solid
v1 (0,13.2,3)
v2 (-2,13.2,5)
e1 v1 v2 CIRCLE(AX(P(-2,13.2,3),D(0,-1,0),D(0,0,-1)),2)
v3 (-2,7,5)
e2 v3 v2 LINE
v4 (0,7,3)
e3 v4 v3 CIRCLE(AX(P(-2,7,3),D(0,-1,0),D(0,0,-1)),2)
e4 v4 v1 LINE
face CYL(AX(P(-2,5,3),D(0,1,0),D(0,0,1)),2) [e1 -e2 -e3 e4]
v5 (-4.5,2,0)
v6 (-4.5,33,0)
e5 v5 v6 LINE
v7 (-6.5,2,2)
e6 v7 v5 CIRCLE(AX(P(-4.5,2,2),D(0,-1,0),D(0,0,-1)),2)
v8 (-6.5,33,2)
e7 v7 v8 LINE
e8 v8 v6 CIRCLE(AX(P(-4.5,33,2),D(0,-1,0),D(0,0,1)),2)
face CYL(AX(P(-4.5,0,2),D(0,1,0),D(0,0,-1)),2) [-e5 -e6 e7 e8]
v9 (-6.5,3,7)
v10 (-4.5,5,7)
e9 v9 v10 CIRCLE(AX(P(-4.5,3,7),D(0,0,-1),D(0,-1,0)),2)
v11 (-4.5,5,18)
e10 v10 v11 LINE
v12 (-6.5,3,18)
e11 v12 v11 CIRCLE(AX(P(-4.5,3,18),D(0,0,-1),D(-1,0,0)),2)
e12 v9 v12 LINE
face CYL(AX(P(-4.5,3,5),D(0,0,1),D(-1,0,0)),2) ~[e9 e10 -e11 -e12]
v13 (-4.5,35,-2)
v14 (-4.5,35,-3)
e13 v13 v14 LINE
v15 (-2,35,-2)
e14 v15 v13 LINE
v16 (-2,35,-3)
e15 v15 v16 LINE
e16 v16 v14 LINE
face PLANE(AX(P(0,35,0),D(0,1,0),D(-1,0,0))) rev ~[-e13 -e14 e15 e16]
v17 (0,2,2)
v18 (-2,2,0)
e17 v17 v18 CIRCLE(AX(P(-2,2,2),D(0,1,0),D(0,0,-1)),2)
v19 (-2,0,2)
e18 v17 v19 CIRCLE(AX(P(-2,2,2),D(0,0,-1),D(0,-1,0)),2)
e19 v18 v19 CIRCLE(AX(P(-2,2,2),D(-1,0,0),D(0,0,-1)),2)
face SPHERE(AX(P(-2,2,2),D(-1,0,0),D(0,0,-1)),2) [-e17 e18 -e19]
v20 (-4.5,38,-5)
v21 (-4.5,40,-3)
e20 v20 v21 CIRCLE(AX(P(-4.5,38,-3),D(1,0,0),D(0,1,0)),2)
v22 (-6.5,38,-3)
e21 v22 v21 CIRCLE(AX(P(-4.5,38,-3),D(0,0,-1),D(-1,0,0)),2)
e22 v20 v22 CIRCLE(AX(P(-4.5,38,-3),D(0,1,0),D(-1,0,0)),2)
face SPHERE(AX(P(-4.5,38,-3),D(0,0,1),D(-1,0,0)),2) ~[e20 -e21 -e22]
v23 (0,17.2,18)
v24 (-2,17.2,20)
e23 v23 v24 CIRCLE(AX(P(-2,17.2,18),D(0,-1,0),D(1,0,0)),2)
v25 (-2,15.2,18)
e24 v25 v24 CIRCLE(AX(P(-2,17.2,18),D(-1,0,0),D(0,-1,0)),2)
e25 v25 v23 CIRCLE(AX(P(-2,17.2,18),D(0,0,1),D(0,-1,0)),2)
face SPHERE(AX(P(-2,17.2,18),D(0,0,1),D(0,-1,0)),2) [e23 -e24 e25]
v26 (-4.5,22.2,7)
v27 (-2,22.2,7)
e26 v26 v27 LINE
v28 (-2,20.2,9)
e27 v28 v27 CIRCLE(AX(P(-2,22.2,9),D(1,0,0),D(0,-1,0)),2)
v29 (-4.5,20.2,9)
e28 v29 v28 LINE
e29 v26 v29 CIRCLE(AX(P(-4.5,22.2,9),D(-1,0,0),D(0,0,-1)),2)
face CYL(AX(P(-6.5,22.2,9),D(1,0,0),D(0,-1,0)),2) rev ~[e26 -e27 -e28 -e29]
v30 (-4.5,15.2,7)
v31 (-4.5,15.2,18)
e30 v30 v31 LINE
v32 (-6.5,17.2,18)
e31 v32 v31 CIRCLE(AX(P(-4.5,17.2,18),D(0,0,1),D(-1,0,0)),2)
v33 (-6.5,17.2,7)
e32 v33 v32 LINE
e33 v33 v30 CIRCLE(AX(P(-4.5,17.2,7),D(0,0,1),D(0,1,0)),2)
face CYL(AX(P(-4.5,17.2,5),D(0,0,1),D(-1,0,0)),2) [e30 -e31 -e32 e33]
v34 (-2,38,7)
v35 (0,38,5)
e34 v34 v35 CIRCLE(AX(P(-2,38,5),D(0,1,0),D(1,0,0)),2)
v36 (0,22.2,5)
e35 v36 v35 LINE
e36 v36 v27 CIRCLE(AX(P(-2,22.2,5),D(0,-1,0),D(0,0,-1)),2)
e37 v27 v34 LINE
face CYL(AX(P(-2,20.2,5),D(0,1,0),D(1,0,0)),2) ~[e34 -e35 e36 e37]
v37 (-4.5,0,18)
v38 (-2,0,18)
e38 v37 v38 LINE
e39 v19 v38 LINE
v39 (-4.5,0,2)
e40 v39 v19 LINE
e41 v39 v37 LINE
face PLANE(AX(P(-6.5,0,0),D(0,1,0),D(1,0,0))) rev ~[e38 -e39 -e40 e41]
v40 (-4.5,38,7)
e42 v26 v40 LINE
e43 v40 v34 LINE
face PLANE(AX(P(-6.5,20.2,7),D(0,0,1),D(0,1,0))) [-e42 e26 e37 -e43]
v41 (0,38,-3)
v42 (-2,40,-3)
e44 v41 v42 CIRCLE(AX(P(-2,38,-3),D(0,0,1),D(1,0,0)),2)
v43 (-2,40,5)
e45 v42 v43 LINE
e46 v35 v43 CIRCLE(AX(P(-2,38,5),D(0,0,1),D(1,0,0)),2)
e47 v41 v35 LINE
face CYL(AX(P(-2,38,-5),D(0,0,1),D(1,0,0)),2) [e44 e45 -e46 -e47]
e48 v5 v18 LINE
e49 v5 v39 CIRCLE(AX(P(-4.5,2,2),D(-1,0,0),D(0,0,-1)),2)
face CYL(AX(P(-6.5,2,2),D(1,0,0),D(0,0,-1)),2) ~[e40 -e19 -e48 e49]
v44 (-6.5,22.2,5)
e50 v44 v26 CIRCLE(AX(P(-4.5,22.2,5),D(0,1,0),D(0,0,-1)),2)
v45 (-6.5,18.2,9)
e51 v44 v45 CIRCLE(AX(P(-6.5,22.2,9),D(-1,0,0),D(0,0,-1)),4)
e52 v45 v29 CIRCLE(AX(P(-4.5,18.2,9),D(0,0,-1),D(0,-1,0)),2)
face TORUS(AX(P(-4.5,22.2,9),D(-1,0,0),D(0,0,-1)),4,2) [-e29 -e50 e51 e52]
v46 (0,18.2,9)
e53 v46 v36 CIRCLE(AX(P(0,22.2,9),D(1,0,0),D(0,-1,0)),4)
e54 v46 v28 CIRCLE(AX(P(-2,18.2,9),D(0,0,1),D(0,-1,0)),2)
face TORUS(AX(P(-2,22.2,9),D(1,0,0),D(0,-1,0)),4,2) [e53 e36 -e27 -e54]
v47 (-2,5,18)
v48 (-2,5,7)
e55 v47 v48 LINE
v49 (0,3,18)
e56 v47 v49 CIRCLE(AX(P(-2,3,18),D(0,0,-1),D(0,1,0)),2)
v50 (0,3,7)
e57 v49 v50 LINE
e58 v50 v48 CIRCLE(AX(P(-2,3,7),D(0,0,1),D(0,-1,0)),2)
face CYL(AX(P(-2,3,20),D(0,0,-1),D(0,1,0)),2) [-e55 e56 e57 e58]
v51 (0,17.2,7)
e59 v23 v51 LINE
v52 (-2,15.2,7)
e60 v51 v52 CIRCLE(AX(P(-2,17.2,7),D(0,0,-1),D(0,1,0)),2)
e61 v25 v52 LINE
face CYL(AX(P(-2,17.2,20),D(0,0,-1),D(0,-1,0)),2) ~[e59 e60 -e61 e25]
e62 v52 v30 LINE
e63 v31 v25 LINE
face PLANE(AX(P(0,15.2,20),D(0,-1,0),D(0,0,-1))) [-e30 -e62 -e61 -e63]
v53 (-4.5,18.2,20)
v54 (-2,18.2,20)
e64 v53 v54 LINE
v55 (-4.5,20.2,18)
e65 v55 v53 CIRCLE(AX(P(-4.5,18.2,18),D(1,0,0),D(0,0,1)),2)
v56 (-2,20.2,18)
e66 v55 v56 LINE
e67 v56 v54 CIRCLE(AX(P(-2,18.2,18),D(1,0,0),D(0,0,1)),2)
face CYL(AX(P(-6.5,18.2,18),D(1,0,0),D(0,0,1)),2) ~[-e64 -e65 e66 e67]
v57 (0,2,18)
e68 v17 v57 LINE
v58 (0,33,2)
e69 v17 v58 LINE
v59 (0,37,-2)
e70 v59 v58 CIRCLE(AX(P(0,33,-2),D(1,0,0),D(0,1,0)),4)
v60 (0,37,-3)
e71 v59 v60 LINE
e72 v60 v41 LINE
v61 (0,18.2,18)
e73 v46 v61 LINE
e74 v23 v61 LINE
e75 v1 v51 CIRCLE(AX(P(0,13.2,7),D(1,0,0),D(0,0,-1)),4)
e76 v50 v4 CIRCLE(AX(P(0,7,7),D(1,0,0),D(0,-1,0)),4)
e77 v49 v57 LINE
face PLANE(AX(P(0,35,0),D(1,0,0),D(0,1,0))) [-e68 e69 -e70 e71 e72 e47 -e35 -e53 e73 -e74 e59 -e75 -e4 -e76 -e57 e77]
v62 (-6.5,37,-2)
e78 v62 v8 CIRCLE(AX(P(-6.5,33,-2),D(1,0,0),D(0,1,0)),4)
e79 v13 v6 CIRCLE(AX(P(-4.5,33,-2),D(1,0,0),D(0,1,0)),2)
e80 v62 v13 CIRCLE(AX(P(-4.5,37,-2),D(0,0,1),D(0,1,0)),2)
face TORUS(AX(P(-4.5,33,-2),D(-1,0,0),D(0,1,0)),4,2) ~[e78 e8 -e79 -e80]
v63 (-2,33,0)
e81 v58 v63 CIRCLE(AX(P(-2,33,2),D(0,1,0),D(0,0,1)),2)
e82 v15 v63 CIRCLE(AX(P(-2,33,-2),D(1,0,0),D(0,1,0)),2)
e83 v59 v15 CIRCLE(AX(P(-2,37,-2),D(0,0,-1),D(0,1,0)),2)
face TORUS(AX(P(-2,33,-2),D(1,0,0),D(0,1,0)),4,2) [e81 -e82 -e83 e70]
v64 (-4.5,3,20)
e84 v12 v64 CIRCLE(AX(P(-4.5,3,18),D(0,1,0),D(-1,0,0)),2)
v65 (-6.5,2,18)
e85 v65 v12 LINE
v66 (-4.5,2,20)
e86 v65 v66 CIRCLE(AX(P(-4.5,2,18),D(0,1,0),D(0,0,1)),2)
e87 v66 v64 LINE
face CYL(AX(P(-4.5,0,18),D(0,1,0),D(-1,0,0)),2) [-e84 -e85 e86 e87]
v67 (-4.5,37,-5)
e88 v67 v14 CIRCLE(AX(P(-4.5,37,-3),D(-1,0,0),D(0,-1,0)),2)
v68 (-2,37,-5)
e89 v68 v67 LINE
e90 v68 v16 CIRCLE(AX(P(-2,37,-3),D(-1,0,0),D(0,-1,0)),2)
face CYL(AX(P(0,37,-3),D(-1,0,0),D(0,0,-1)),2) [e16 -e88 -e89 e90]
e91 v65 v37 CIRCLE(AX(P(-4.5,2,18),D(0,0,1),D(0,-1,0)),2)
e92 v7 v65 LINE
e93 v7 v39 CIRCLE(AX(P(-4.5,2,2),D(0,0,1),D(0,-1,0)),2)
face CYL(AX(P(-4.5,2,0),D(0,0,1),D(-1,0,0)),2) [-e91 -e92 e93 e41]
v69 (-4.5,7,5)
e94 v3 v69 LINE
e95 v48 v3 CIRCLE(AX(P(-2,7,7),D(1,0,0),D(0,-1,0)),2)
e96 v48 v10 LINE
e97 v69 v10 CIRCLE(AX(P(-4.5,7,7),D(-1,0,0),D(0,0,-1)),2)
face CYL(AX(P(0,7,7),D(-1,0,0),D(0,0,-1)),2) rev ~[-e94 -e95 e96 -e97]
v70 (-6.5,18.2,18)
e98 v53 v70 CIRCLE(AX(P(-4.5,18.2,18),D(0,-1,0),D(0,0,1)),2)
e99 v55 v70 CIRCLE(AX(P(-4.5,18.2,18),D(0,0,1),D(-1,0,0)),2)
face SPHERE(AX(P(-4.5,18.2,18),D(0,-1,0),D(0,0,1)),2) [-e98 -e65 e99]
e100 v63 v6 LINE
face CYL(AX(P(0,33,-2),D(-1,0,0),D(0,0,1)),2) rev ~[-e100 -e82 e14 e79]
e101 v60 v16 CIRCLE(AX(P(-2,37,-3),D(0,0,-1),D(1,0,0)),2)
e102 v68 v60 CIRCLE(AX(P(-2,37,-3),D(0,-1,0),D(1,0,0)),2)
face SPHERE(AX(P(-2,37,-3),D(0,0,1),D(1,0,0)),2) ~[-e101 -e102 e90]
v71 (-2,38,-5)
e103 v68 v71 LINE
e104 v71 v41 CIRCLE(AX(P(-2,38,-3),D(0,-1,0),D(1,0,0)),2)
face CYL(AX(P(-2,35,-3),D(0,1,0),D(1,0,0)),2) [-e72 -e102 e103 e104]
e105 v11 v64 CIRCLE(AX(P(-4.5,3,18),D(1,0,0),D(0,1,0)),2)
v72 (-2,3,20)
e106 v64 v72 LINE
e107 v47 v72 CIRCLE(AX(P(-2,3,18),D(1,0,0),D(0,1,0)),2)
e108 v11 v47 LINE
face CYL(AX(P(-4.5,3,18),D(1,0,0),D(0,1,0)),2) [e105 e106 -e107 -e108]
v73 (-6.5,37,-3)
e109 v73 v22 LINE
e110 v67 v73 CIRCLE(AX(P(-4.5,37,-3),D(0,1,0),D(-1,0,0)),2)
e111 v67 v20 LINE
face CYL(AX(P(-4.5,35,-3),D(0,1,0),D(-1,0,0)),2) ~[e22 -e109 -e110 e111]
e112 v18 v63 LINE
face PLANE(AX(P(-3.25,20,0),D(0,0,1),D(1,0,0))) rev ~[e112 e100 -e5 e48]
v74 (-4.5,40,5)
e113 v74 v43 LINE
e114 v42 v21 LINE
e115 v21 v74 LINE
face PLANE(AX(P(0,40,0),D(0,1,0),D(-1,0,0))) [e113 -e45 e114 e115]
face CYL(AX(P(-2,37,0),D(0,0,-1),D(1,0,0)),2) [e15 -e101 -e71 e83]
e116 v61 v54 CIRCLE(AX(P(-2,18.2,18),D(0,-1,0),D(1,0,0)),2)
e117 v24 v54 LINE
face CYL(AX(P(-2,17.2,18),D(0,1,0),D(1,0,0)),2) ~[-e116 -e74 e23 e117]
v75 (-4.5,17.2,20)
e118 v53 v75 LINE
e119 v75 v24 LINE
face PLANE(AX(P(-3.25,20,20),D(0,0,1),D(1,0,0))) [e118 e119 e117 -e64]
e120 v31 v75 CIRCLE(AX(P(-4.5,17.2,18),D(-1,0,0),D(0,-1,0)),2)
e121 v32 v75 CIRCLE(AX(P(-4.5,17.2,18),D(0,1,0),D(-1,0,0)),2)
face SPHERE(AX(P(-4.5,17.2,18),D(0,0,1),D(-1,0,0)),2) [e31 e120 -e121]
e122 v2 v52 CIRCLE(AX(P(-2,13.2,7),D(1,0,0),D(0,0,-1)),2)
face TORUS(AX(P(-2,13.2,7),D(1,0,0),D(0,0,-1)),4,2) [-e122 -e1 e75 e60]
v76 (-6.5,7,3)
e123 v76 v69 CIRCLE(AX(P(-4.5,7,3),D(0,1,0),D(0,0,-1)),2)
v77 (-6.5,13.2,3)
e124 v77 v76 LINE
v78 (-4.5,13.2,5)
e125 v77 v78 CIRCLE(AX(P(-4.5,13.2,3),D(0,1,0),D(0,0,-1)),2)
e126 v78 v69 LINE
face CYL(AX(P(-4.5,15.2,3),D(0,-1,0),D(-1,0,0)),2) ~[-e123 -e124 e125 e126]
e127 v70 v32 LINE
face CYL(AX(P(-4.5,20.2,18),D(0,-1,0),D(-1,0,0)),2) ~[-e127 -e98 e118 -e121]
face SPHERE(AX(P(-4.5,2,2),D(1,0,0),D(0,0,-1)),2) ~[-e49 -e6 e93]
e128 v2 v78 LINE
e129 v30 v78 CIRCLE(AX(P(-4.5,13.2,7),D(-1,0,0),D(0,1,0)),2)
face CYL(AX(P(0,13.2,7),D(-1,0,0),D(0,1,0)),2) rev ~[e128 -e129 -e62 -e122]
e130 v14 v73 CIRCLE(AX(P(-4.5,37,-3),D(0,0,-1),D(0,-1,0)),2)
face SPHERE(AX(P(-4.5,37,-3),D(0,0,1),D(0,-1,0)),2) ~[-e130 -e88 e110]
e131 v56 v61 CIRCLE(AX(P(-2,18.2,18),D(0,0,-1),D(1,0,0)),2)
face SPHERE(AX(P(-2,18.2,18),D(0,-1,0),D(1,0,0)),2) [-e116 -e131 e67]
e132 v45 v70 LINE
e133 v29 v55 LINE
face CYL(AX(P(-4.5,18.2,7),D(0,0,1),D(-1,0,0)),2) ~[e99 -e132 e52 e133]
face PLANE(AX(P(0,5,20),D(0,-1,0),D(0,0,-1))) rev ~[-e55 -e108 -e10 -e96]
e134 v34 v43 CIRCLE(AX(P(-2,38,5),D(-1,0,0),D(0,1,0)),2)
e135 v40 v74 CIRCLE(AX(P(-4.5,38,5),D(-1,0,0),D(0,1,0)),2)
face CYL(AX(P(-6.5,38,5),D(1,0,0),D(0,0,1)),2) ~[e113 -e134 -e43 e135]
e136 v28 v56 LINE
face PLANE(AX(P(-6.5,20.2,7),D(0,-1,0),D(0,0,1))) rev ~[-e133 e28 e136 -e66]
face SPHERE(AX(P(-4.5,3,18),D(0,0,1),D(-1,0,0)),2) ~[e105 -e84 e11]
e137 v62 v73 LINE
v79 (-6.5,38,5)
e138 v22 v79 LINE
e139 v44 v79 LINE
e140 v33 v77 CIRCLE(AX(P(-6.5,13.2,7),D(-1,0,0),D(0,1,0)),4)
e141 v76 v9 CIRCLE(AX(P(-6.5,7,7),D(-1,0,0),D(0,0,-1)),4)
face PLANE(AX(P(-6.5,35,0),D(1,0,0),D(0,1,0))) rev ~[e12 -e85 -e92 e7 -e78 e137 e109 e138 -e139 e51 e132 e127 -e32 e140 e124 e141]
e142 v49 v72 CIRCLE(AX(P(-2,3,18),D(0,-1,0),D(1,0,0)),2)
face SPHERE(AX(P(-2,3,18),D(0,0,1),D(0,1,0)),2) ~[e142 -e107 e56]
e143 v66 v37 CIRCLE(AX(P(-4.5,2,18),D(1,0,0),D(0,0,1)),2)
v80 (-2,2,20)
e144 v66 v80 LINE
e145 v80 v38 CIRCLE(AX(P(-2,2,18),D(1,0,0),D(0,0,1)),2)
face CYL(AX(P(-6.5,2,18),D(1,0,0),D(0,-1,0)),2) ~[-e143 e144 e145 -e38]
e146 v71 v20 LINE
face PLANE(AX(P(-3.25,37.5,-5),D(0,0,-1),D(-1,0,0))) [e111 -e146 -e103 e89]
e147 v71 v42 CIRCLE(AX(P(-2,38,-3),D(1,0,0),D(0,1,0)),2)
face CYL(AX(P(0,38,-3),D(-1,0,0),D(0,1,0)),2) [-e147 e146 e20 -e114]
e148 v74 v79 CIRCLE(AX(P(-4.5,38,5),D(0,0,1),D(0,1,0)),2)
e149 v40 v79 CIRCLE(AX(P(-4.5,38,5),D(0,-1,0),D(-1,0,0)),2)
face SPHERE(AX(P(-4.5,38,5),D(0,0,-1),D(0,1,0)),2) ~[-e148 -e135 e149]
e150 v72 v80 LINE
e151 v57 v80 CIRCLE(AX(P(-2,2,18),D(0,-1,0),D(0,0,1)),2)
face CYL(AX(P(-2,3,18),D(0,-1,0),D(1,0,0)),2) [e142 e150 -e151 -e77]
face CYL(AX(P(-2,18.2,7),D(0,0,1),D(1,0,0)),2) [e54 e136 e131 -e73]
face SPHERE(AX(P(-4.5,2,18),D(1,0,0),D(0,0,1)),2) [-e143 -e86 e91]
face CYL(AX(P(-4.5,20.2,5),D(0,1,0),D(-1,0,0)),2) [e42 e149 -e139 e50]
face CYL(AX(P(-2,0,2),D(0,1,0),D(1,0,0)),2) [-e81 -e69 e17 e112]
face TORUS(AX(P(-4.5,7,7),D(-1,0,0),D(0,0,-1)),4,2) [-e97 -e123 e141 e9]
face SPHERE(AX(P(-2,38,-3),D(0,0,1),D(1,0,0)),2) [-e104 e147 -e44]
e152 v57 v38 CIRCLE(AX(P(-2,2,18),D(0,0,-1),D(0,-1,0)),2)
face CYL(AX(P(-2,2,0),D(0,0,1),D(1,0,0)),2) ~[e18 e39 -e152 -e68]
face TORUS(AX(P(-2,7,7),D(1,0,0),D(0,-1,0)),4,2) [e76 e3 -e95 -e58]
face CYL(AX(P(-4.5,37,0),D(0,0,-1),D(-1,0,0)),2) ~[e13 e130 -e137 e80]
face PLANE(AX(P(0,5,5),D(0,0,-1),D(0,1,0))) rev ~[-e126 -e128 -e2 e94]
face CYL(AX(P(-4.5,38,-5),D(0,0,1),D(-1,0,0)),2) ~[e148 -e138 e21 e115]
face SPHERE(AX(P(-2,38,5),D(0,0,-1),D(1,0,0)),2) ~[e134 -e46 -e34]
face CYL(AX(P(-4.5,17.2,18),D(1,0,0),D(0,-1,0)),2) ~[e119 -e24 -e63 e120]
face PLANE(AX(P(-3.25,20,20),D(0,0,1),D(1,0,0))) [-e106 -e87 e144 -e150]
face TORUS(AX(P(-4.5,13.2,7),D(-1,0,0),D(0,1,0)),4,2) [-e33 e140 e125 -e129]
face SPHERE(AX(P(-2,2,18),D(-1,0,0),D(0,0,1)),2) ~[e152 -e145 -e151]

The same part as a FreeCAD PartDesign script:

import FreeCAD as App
import Part
import Sketcher
from FreeCAD import Vector
Q = App.Units.Quantity


def edges_at(feature, points):
    """Names of the edges that pass closest to the given points."""
    edges = feature.Shape.Edges
    near = lambda p: min(range(len(edges)), key=lambda i: edges[i].distToShape(Part.Vertex(*p))[0])
    return sorted({f"Edge{near(p) + 1}" for p in points})


def add_polygon(sketch, points):
    """Adds a closed chain of lines whose ends are joined by coincident constraints."""
    first, n = sketch.GeometryCount, len(points)
    for a, b in zip(points, points[1:] + points[:1]):
        sketch.addGeometry(Part.LineSegment(App.Vector(*a, 0), App.Vector(*b, 0)), False)
    for i in range(n):
        sketch.addConstraint(Sketcher.Constraint("Coincident", first + i, 2, first + (i + 1) % n, 1))

doc = App.newDocument("Part")
body = doc.addObject("PartDesign::Body", "Body")

# Sketch on XY plane
sketch1 = doc.addObject("Sketcher::SketchObject", "Sketch")
body.addObject(sketch1)
sketch1.AttachmentSupport = (doc.XY_Plane, [""])
sketch1.MapMode = "FlatFace"
add_polygon(sketch1, [(-6, 40), (-6, 0), (0, 0), (0, 40)])  # lines 0-3
sketch1.addConstraint(Sketcher.Constraint("Vertical", 0))
sketch1.addConstraint(Sketcher.Constraint("Horizontal", 1))
sketch1.addConstraint(Sketcher.Constraint("Vertical", 2))
sketch1.addConstraint(Sketcher.Constraint("Horizontal", 3))
sketch1.addConstraint(Sketcher.Constraint("Coincident", 1, 2, -1, 1))
sketch1.addConstraint(Sketcher.Constraint("DistanceY", 0, 2, 0, 1, Q("40 mm")))
sketch1.addConstraint(Sketcher.Constraint("DistanceX", 1, 1, 1, 2, Q("6.5 mm")))
pad1 = doc.addObject("PartDesign::Pad", "Pad")
body.addObject(pad1)
pad1.Profile = sketch1
pad1.Length = 20

# Sketch on YZ plane
sketch2 = doc.addObject("Sketcher::SketchObject", "Sketch001")
body.addObject(sketch2)
sketch2.AttachmentSupport = (doc.YZ_Plane, [""])
sketch2.MapMode = "FlatFace"
add_polygon(sketch2, [(15, 20), (5, 20), (5, 5), (15, 5)])  # lines 0-3
sketch2.addConstraint(Sketcher.Constraint("Horizontal", 0))
sketch2.addConstraint(Sketcher.Constraint("Vertical", 1))
sketch2.addConstraint(Sketcher.Constraint("Horizontal", 2))
sketch2.addConstraint(Sketcher.Constraint("Vertical", 3))
sketch2.addConstraint(Sketcher.Constraint("DistanceY", 1, 2, 1, 1, Q("15 mm")))
sketch2.addConstraint(Sketcher.Constraint("DistanceX", 0, 2, 0, 1, Q("10.2 mm")))
sketch2.addConstraint(Sketcher.Constraint("DistanceX", -1, 1, 0, 2, Q("5 mm")))
sketch2.addConstraint(Sketcher.Constraint("DistanceY", -1, 1, 0, 2, Q("20 mm")))
pocket1 = doc.addObject("PartDesign::Pocket", "Pocket")
body.addObject(pocket1)
pocket1.Profile = sketch2
pocket1.Type = "ThroughAll"
doc.recompute()

fillet = doc.addObject("PartDesign::Fillet", "Fillet")
body.addObject(fillet)
fillet.Base = (pocket1, edges_at(pocket1, [
    (-6.5, 15.2, 12.5),
    (-6.5, 10.1, 5),
    (-3.25, 15.2, 5),
    (-6.5, 5, 12.5),
    (-3.25, 5, 5),
    (0, 5, 12.5),
    (0, 10.1, 5),
    (0, 15.2, 12.5),
]))
fillet.Radius = 2

# Sketch on YZ plane
sketch3 = doc.addObject("Sketcher::SketchObject", "Sketch002")
body.addObject(sketch3)
sketch3.AttachmentSupport = (doc.YZ_Plane, [""])
sketch3.MapMode = "FlatFace"
sketch3.AttachmentOffset = App.Placement(Vector(0, 0, -6.5), App.Rotation())
add_polygon(sketch3, [(40, 7), (20, 7), (20, 20), (40, 20)])  # lines 0-3
sketch3.addConstraint(Sketcher.Constraint("Horizontal", 0))
sketch3.addConstraint(Sketcher.Constraint("Vertical", 1))
sketch3.addConstraint(Sketcher.Constraint("Horizontal", 2))
sketch3.addConstraint(Sketcher.Constraint("Vertical", 3))
sketch3.addConstraint(Sketcher.Constraint("DistanceY", 1, 1, 1, 2, Q("13 mm")))
sketch3.addConstraint(Sketcher.Constraint("DistanceX", 0, 2, 0, 1, Q("19.8 mm")))
sketch3.addConstraint(Sketcher.Constraint("DistanceY", -1, 1, 0, 2, Q("7 mm")))
sketch3.addConstraint(Sketcher.Constraint("DistanceX", -1, 1, 2, 2, Q("40 mm")))
pocket2 = doc.addObject("PartDesign::Pocket", "Pocket001")
body.addObject(pocket2)
pocket2.Profile = sketch3
pocket2.Type = "ThroughAll"
pocket2.Reversed = True

# Sketch on XY plane
sketch4 = doc.addObject("Sketcher::SketchObject", "Sketch003")
body.addObject(sketch4)
sketch4.AttachmentSupport = (doc.XY_Plane, [""])
sketch4.MapMode = "FlatFace"
add_polygon(sketch4, [(0, 40), (0, 35), (-6, 35), (-6, 40)])  # lines 0-3
sketch4.addConstraint(Sketcher.Constraint("Vertical", 0))
sketch4.addConstraint(Sketcher.Constraint("Horizontal", 1))
sketch4.addConstraint(Sketcher.Constraint("Vertical", 2))
sketch4.addConstraint(Sketcher.Constraint("Horizontal", 3))
sketch4.addConstraint(Sketcher.Constraint("PointOnObject", 0, 2, -2))
sketch4.addConstraint(Sketcher.Constraint("DistanceY", 0, 2, 0, 1, Q("5 mm")))
sketch4.addConstraint(Sketcher.Constraint("DistanceX", 1, 2, 1, 1, Q("6.5 mm")))
sketch4.addConstraint(Sketcher.Constraint("DistanceY", -1, 1, 0, 2, Q("35 mm")))
pad2 = doc.addObject("PartDesign::Pad", "Pad001")
body.addObject(pad2)
pad2.Profile = sketch4
pad2.Length = 5
pad2.Reversed = True
doc.recompute()

fillet2 = doc.addObject("PartDesign::Fillet", "Fillet001")
body.addObject(fillet2)
fillet2.Base = (pad2, edges_at(pad2, [
    (-3.25, 0, 20),
    (-6.5, 1.5, 20),
    (-3.25, 5, 20),
    (-0.586, 4.414, 20),
    (-5.914, 4.414, 20),
    (0, 18.7, 20),
    (-3.25, 15.2, 20),
    (-0.586, 15.786, 20),
    (-5.914, 15.786, 20),
    (0, 1.5, 20),
    (-3.25, 0, 0),
    (0, 17.5, 0),
    (-6.5, 18.7, 20),
    (-6.5, 40, 1),
    (0, 40, 1),
    (0, 20.2, 13.5),
    (-3.25, 20.2, 20),
    (0, 30.1, 7),
    (-3.25, 20.2, 7),
    (-3.25, 40, 7),
    (-6.5, 30.1, 7),
    (-6.5, 20.2, 13.5),
    (-6.5, 17.5, 0),
    (0, 0, 10),
    (-3.25, 35, 0),
    (-6.5, 0, 10),
    (0, 35, -2.5),
    (-6.5, 35, -2.5),
    (0, 37.5, -5),
    (-3.25, 35, -5),
    (-6.5, 37.5, -5),
    (-3.25, 40, -5),
]))
fillet2.Radius = 2

doc.recompute()
